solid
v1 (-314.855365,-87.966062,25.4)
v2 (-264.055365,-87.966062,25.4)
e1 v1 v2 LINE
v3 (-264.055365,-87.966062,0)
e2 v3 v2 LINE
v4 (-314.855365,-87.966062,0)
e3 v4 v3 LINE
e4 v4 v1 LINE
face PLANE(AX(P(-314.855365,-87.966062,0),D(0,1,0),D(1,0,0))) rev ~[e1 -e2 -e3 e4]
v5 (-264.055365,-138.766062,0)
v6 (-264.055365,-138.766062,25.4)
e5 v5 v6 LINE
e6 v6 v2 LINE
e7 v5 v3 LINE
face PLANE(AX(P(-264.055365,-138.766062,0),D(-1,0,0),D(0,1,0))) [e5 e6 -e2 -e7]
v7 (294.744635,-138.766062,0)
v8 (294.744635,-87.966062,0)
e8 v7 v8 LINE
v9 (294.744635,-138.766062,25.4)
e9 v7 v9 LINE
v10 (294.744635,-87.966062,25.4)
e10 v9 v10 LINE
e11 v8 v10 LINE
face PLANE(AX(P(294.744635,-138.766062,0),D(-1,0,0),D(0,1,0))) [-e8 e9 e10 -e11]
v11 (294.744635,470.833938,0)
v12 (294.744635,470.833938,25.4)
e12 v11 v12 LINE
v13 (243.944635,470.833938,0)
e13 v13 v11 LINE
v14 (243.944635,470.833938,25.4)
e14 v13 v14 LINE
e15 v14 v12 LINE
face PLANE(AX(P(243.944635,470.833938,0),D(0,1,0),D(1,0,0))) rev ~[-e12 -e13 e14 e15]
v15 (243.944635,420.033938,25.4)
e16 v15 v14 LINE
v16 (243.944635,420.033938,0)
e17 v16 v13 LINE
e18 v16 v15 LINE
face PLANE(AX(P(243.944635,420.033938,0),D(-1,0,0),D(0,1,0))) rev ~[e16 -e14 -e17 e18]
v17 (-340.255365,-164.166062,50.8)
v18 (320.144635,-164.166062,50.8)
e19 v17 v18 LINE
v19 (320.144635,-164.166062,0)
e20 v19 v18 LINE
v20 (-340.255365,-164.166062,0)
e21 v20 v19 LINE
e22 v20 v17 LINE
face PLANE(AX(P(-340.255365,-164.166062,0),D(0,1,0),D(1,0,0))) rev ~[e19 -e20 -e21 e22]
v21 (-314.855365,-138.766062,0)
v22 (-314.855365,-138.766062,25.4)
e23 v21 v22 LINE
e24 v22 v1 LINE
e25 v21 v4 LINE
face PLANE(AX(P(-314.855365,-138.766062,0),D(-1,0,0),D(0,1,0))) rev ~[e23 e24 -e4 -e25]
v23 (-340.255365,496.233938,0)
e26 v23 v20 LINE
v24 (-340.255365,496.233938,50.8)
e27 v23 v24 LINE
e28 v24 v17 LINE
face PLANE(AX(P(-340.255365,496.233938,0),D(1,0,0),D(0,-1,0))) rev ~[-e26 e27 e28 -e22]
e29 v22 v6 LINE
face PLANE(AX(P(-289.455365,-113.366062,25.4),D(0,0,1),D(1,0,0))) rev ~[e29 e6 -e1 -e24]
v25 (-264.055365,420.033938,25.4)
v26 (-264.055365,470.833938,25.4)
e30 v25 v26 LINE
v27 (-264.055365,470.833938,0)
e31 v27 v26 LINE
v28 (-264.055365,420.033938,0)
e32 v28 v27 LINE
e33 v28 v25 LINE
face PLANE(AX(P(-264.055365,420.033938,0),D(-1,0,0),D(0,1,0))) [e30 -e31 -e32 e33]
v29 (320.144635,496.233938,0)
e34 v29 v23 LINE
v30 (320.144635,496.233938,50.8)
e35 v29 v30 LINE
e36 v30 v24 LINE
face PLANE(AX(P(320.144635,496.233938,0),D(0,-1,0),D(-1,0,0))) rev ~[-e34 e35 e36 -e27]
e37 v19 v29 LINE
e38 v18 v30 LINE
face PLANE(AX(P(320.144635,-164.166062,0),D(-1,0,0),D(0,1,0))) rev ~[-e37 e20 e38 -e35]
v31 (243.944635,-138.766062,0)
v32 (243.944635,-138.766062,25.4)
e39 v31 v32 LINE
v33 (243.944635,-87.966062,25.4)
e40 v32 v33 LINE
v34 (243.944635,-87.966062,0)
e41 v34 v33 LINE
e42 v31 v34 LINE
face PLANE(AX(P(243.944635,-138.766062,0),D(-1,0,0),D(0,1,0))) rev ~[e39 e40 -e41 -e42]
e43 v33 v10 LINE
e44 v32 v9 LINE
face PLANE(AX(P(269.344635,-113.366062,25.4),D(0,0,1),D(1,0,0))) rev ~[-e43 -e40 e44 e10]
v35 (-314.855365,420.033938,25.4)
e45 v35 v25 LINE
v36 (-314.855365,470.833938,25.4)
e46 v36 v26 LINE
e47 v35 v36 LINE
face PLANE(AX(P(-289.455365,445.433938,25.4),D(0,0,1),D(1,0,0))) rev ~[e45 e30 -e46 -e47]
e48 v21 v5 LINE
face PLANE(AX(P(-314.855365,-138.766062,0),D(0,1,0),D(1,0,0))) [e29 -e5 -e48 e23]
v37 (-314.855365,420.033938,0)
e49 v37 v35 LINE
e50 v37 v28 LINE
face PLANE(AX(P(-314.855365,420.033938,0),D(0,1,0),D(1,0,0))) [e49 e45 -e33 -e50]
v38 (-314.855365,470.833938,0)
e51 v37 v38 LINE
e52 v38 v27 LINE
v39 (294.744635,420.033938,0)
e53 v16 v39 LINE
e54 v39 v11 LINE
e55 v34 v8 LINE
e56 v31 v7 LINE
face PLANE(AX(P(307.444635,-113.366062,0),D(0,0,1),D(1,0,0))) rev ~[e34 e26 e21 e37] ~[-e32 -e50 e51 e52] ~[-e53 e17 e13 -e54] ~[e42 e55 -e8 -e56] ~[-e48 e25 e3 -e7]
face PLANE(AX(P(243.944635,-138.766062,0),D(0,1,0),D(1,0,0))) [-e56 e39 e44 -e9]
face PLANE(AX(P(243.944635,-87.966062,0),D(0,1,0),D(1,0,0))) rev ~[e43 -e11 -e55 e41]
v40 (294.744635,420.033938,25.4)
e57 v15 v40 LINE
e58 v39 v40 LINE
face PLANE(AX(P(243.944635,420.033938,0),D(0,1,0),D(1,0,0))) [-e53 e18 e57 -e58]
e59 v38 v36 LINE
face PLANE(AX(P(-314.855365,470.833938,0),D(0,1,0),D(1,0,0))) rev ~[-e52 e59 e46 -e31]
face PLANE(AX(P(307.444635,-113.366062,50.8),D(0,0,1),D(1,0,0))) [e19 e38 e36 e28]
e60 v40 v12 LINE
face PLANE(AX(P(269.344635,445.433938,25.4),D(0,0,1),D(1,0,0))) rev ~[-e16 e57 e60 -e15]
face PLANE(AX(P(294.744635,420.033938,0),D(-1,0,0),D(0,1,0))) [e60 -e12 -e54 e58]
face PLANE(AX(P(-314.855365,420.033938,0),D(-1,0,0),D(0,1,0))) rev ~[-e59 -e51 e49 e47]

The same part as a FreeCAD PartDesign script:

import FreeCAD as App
import Part
import Sketcher

V = App.Vector
Q = App.Units.Quantity

doc = App.newDocument("Part")
body = doc.addObject("PartDesign::Body", "Body")

sketch1 = doc.addObject("Sketcher::SketchObject", "Sketch")
body.addObject(sketch1)
sketch1.AttachmentSupport = (doc.XY_Plane, [""])
sketch1.MapMode = "FlatFace"
sketch1.addGeometry(Part.LineSegment(V(-340, -164, 0), V(320, -164, 0)), False)
sketch1.addGeometry(Part.LineSegment(V(320, -164, 0), V(320, 496, 0)), False)
sketch1.addGeometry(Part.LineSegment(V(320, 496, 0), V(-340, 496, 0)), False)
sketch1.addGeometry(Part.LineSegment(V(-340, 496, 0), V(-340, -164, 0)), False)
sketch1.addConstraint(Sketcher.Constraint("Coincident", 0, 2, 1, 1))
sketch1.addConstraint(Sketcher.Constraint("Coincident", 1, 2, 2, 1))
sketch1.addConstraint(Sketcher.Constraint("Coincident", 2, 2, 3, 1))
sketch1.addConstraint(Sketcher.Constraint("Coincident", 3, 2, 0, 1))
sketch1.addConstraint(Sketcher.Constraint("Horizontal", 0))
sketch1.addConstraint(Sketcher.Constraint("Vertical", 1))
sketch1.addConstraint(Sketcher.Constraint("Horizontal", 2))
sketch1.addConstraint(Sketcher.Constraint("Vertical", 3))
sketch1.addConstraint(Sketcher.Constraint("Equal", 2, 1))
sketch1.addConstraint(Sketcher.Constraint("DistanceX", 0, 1, 0, 2, Q("26 in")))
sketch1.addConstraint(Sketcher.Constraint("DistanceX", -1, 1, 0, 2, 320.144635))
sketch1.addConstraint(Sketcher.Constraint("DistanceY", 0, 2, -1, 1, 164.166062))
pad1 = doc.addObject("PartDesign::Pad", "Pad")
body.addObject(pad1)
pad1.Profile = sketch1
pad1.Length = Q("2 in")

sketch2 = doc.addObject("Sketcher::SketchObject", "Sketch001")
body.addObject(sketch2)
sketch2.AttachmentSupport = (doc.XY_Plane, [""])
sketch2.MapMode = "FlatFace"
sketch2.addGeometry(Part.LineSegment(V(244, -88, 0), V(244, -139, 0)), False)
sketch2.addGeometry(Part.LineSegment(V(244, -139, 0), V(295, -139, 0)), False)
sketch2.addGeometry(Part.LineSegment(V(295, -139, 0), V(295, -88, 0)), False)
sketch2.addGeometry(Part.LineSegment(V(295, -88, 0), V(244, -88, 0)), False)
sketch2.addConstraint(Sketcher.Constraint("Coincident", 0, 2, 1, 1))
sketch2.addConstraint(Sketcher.Constraint("Coincident", 1, 2, 2, 1))
sketch2.addConstraint(Sketcher.Constraint("Coincident", 2, 2, 3, 1))
sketch2.addConstraint(Sketcher.Constraint("Coincident", 3, 2, 0, 1))
sketch2.addConstraint(Sketcher.Constraint("Vertical", 0))
sketch2.addConstraint(Sketcher.Constraint("Horizontal", 1))
sketch2.addConstraint(Sketcher.Constraint("Vertical", 2))
sketch2.addConstraint(Sketcher.Constraint("Horizontal", 3))
sketch2.addConstraint(Sketcher.Constraint("Equal", 3, 0))
sketch2.addConstraint(Sketcher.Constraint("DistanceX", 1, 1, 1, 2, Q("2 in")))
sketch2.addConstraint(Sketcher.Constraint("DistanceX", -1, 1, 0, 2, 243.944635))
sketch2.addConstraint(Sketcher.Constraint("DistanceY", 0, 2, -1, 1, 138.766062))
pocket1 = doc.addObject("PartDesign::Pocket", "Pocket")
body.addObject(pocket1)
pocket1.Profile = sketch2
pocket1.Length = Q("1 in")
pocket1.Reversed = True

sketch3 = doc.addObject("Sketcher::SketchObject", "Sketch002")
body.addObject(sketch3)
sketch3.AttachmentSupport = (doc.XY_Plane, [""])
sketch3.MapMode = "FlatFace"
sketch3.addGeometry(Part.LineSegment(V(244, 471, 0), V(244, 420, 0)), False)
sketch3.addGeometry(Part.LineSegment(V(244, 420, 0), V(295, 420, 0)), False)
sketch3.addGeometry(Part.LineSegment(V(295, 420, 0), V(295, 471, 0)), False)
sketch3.addGeometry(Part.LineSegment(V(295, 471, 0), V(244, 471, 0)), False)
sketch3.addConstraint(Sketcher.Constraint("Coincident", 0, 2, 1, 1))
sketch3.addConstraint(Sketcher.Constraint("Coincident", 1, 2, 2, 1))
sketch3.addConstraint(Sketcher.Constraint("Coincident", 2, 2, 3, 1))
sketch3.addConstraint(Sketcher.Constraint("Coincident", 3, 2, 0, 1))
sketch3.addConstraint(Sketcher.Constraint("Vertical", 0))
sketch3.addConstraint(Sketcher.Constraint("Horizontal", 1))
sketch3.addConstraint(Sketcher.Constraint("Vertical", 2))
sketch3.addConstraint(Sketcher.Constraint("Horizontal", 3))
sketch3.addConstraint(Sketcher.Constraint("Equal", 3, 0))
sketch3.addConstraint(Sketcher.Constraint("DistanceX", 1, 1, 1, 2, Q("2 in")))
sketch3.addConstraint(Sketcher.Constraint("DistanceX", -1, 1, 0, 2, 243.944635))
sketch3.addConstraint(Sketcher.Constraint("DistanceY", -1, 1, 0, 2, 420.033938))
pocket2 = doc.addObject("PartDesign::Pocket", "Pocket001")
body.addObject(pocket2)
pocket2.Profile = sketch3
pocket2.Length = Q("1 in")
pocket2.Reversed = True

sketch4 = doc.addObject("Sketcher::SketchObject", "Sketch003")
body.addObject(sketch4)
sketch4.AttachmentSupport = (doc.XY_Plane, [""])
sketch4.MapMode = "FlatFace"
sketch4.addGeometry(Part.LineSegment(V(-315, 471, 0), V(-315, 420, 0)), False)
sketch4.addGeometry(Part.LineSegment(V(-315, 420, 0), V(-264, 420, 0)), False)
sketch4.addGeometry(Part.LineSegment(V(-264, 420, 0), V(-264, 471, 0)), False)
sketch4.addGeometry(Part.LineSegment(V(-264, 471, 0), V(-315, 471, 0)), False)
sketch4.addConstraint(Sketcher.Constraint("Coincident", 0, 2, 1, 1))
sketch4.addConstraint(Sketcher.Constraint("Coincident", 1, 2, 2, 1))
sketch4.addConstraint(Sketcher.Constraint("Coincident", 2, 2, 3, 1))
sketch4.addConstraint(Sketcher.Constraint("Coincident", 3, 2, 0, 1))
sketch4.addConstraint(Sketcher.Constraint("Vertical", 0))
sketch4.addConstraint(Sketcher.Constraint("Horizontal", 1))
sketch4.addConstraint(Sketcher.Constraint("Vertical", 2))
sketch4.addConstraint(Sketcher.Constraint("Horizontal", 3))
sketch4.addConstraint(Sketcher.Constraint("Equal", 3, 0))
sketch4.addConstraint(Sketcher.Constraint("DistanceX", 1, 1, 1, 2, Q("2 in")))
sketch4.addConstraint(Sketcher.Constraint("DistanceX", 0, 2, -1, 1, 314.855365))
sketch4.addConstraint(Sketcher.Constraint("DistanceY", -1, 1, 0, 2, 420.033938))
pocket3 = doc.addObject("PartDesign::Pocket", "Pocket002")
body.addObject(pocket3)
pocket3.Profile = sketch4
pocket3.Length = Q("1 in")
pocket3.Reversed = True

sketch5 = doc.addObject("Sketcher::SketchObject", "Sketch004")
body.addObject(sketch5)
sketch5.AttachmentSupport = (doc.XY_Plane, [""])
sketch5.MapMode = "FlatFace"
sketch5.addGeometry(Part.LineSegment(V(-315, -88, 0), V(-315, -139, 0)), False)
sketch5.addGeometry(Part.LineSegment(V(-315, -139, 0), V(-264, -139, 0)), False)
sketch5.addGeometry(Part.LineSegment(V(-264, -139, 0), V(-264, -88, 0)), False)
sketch5.addGeometry(Part.LineSegment(V(-264, -88, 0), V(-315, -88, 0)), False)
sketch5.addConstraint(Sketcher.Constraint("Coincident", 0, 2, 1, 1))
sketch5.addConstraint(Sketcher.Constraint("Coincident", 1, 2, 2, 1))
sketch5.addConstraint(Sketcher.Constraint("Coincident", 2, 2, 3, 1))
sketch5.addConstraint(Sketcher.Constraint("Coincident", 3, 2, 0, 1))
sketch5.addConstraint(Sketcher.Constraint("Vertical", 0))
sketch5.addConstraint(Sketcher.Constraint("Horizontal", 1))
sketch5.addConstraint(Sketcher.Constraint("Vertical", 2))
sketch5.addConstraint(Sketcher.Constraint("Horizontal", 3))
sketch5.addConstraint(Sketcher.Constraint("Equal", 3, 0))
sketch5.addConstraint(Sketcher.Constraint("DistanceX", 1, 1, 1, 2, Q("2 in")))
sketch5.addConstraint(Sketcher.Constraint("DistanceX", 0, 2, -1, 1, 314.855365))
sketch5.addConstraint(Sketcher.Constraint("DistanceY", 0, 2, -1, 1, 138.766062))
pocket4 = doc.addObject("PartDesign::Pocket", "Pocket003")
body.addObject(pocket4)
pocket4.Profile = sketch5
pocket4.Length = Q("1 in")
pocket4.Reversed = True

doc.recompute()
